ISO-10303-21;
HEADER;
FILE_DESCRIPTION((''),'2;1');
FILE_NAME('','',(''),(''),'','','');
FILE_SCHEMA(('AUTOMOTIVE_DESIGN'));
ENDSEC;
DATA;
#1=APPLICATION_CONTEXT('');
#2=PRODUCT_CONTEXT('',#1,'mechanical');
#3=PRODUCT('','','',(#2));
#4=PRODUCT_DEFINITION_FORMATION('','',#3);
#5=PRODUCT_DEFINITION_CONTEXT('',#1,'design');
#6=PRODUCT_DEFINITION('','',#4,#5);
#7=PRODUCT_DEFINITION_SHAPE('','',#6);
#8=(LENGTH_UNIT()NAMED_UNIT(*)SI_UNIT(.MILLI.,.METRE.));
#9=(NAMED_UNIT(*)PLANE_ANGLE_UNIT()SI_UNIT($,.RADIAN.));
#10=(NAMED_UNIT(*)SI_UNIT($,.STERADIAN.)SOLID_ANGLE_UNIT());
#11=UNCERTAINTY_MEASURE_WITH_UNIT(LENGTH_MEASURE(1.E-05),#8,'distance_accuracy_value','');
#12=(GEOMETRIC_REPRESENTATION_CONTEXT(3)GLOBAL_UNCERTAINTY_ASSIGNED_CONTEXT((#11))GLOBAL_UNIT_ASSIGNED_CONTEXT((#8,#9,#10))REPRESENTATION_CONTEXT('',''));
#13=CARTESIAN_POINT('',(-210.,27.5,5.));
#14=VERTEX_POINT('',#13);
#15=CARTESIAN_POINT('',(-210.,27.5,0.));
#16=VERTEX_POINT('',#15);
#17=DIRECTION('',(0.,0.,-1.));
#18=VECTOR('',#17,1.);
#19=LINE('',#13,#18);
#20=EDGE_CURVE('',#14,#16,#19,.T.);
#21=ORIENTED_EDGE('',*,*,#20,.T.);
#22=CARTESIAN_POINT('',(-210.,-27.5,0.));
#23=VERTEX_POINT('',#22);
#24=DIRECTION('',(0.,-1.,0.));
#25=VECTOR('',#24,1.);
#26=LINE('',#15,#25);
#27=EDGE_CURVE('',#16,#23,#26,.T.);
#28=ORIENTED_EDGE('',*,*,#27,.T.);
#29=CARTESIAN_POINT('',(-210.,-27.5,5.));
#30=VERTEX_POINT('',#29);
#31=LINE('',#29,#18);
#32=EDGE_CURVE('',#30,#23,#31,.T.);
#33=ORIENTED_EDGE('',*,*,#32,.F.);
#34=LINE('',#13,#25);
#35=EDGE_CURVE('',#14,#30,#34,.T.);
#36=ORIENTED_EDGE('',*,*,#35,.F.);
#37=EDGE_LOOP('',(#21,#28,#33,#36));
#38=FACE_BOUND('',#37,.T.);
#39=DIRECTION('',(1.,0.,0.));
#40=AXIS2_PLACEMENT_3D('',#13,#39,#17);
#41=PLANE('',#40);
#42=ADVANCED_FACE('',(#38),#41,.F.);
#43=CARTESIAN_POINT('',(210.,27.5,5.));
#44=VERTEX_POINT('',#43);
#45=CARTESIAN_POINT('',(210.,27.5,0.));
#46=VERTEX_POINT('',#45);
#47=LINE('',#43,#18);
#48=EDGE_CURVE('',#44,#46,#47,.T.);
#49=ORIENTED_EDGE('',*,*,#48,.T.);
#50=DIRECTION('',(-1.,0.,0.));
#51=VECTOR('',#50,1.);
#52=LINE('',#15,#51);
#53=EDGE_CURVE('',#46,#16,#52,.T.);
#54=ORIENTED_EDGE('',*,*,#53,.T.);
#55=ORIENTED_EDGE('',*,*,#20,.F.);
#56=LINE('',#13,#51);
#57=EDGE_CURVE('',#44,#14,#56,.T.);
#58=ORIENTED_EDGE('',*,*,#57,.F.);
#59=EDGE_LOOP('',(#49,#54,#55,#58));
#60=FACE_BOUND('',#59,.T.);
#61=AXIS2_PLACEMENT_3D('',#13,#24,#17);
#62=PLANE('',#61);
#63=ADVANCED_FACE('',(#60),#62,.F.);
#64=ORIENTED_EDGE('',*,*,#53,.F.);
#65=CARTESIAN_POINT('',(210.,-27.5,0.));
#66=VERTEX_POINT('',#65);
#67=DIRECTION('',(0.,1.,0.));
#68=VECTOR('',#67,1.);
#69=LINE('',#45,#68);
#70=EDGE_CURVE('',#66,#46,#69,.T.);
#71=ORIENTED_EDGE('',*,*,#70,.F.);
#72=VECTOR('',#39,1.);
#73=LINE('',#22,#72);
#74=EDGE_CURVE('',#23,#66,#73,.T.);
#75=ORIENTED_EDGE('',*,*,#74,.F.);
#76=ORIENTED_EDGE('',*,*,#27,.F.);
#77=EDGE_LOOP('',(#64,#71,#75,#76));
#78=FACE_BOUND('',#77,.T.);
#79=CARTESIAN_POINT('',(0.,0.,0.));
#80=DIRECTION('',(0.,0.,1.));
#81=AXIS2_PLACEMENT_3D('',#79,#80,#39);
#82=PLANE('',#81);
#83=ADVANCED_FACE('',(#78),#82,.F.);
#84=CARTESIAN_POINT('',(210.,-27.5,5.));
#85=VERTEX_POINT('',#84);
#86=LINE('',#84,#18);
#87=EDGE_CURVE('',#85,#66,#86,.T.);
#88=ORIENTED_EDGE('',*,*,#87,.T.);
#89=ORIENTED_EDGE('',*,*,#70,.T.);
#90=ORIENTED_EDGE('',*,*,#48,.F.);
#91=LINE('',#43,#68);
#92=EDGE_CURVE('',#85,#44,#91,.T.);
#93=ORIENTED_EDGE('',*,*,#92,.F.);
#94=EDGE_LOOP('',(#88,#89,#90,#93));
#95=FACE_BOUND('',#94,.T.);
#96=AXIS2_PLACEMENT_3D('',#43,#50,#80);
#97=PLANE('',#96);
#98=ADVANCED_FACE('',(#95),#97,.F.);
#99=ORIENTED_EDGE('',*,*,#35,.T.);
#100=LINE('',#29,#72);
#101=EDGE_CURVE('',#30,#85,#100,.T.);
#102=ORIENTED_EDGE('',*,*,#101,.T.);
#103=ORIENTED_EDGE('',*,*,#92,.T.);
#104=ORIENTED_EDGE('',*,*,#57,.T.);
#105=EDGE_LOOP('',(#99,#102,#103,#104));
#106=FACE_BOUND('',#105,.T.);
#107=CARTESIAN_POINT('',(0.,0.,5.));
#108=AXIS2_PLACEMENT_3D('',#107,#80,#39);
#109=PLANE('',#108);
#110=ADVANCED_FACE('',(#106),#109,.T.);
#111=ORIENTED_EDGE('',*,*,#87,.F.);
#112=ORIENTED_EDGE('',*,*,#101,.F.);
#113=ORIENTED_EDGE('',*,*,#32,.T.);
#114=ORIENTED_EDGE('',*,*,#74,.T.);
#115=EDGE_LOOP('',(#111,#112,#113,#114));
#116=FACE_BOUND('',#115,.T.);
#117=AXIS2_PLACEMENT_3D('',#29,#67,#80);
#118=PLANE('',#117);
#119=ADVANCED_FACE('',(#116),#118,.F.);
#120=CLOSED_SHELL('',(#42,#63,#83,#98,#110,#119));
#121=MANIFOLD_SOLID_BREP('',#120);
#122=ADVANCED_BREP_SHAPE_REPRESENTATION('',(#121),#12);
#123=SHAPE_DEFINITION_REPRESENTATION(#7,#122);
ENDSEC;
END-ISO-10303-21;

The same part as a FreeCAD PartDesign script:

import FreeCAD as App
import Part
import Sketcher
from FreeCAD import Vector

doc = App.newDocument("Part")
body = doc.addObject("PartDesign::Body", "Body")

sketch1 = body.newObject("Sketcher::SketchObject", "Sketch")
sketch1.AttachmentSupport = (doc.getObject("XY_Plane"), [""])
sketch1.MapMode = "FlatFace"
sketch1.addGeometry(Part.LineSegment(Vector(-210, 27.5, 0), Vector(-210, -27.5, 0)), False)
sketch1.addGeometry(Part.LineSegment(Vector(-210, -27.5, 0), Vector(210, -27.5, 0)), False)
sketch1.addGeometry(Part.LineSegment(Vector(210, -27.5, 0), Vector(210, 27.5, 0)), False)
sketch1.addGeometry(Part.LineSegment(Vector(210, 27.5, 0), Vector(-210, 27.5, 0)), False)
sketch1.addConstraint(Sketcher.Constraint("Coincident", 0, 2, 1, 1))
sketch1.addConstraint(Sketcher.Constraint("Coincident", 1, 2, 2, 1))
sketch1.addConstraint(Sketcher.Constraint("Coincident", 2, 2, 3, 1))
sketch1.addConstraint(Sketcher.Constraint("Coincident", 3, 2, 0, 1))
sketch1.addConstraint(Sketcher.Constraint("Vertical", 0))
sketch1.addConstraint(Sketcher.Constraint("Horizontal", 1))
sketch1.addConstraint(Sketcher.Constraint("Vertical", 2))
sketch1.addConstraint(Sketcher.Constraint("Horizontal", 3))
sketch1.addConstraint(Sketcher.Constraint("Symmetric", 0, 2, 2, 2, -1, 1))
sketch1.addConstraint(Sketcher.Constraint("DistanceX", 1, 1, 1, 2, 420.0))
sketch1.addConstraint(Sketcher.Constraint("DistanceY", 0, 2, 0, 1, 55.0))
pad1 = body.newObject("PartDesign::Pad", "Pad")
pad1.Profile = sketch1
pad1.Length = 5

doc.recompute()
